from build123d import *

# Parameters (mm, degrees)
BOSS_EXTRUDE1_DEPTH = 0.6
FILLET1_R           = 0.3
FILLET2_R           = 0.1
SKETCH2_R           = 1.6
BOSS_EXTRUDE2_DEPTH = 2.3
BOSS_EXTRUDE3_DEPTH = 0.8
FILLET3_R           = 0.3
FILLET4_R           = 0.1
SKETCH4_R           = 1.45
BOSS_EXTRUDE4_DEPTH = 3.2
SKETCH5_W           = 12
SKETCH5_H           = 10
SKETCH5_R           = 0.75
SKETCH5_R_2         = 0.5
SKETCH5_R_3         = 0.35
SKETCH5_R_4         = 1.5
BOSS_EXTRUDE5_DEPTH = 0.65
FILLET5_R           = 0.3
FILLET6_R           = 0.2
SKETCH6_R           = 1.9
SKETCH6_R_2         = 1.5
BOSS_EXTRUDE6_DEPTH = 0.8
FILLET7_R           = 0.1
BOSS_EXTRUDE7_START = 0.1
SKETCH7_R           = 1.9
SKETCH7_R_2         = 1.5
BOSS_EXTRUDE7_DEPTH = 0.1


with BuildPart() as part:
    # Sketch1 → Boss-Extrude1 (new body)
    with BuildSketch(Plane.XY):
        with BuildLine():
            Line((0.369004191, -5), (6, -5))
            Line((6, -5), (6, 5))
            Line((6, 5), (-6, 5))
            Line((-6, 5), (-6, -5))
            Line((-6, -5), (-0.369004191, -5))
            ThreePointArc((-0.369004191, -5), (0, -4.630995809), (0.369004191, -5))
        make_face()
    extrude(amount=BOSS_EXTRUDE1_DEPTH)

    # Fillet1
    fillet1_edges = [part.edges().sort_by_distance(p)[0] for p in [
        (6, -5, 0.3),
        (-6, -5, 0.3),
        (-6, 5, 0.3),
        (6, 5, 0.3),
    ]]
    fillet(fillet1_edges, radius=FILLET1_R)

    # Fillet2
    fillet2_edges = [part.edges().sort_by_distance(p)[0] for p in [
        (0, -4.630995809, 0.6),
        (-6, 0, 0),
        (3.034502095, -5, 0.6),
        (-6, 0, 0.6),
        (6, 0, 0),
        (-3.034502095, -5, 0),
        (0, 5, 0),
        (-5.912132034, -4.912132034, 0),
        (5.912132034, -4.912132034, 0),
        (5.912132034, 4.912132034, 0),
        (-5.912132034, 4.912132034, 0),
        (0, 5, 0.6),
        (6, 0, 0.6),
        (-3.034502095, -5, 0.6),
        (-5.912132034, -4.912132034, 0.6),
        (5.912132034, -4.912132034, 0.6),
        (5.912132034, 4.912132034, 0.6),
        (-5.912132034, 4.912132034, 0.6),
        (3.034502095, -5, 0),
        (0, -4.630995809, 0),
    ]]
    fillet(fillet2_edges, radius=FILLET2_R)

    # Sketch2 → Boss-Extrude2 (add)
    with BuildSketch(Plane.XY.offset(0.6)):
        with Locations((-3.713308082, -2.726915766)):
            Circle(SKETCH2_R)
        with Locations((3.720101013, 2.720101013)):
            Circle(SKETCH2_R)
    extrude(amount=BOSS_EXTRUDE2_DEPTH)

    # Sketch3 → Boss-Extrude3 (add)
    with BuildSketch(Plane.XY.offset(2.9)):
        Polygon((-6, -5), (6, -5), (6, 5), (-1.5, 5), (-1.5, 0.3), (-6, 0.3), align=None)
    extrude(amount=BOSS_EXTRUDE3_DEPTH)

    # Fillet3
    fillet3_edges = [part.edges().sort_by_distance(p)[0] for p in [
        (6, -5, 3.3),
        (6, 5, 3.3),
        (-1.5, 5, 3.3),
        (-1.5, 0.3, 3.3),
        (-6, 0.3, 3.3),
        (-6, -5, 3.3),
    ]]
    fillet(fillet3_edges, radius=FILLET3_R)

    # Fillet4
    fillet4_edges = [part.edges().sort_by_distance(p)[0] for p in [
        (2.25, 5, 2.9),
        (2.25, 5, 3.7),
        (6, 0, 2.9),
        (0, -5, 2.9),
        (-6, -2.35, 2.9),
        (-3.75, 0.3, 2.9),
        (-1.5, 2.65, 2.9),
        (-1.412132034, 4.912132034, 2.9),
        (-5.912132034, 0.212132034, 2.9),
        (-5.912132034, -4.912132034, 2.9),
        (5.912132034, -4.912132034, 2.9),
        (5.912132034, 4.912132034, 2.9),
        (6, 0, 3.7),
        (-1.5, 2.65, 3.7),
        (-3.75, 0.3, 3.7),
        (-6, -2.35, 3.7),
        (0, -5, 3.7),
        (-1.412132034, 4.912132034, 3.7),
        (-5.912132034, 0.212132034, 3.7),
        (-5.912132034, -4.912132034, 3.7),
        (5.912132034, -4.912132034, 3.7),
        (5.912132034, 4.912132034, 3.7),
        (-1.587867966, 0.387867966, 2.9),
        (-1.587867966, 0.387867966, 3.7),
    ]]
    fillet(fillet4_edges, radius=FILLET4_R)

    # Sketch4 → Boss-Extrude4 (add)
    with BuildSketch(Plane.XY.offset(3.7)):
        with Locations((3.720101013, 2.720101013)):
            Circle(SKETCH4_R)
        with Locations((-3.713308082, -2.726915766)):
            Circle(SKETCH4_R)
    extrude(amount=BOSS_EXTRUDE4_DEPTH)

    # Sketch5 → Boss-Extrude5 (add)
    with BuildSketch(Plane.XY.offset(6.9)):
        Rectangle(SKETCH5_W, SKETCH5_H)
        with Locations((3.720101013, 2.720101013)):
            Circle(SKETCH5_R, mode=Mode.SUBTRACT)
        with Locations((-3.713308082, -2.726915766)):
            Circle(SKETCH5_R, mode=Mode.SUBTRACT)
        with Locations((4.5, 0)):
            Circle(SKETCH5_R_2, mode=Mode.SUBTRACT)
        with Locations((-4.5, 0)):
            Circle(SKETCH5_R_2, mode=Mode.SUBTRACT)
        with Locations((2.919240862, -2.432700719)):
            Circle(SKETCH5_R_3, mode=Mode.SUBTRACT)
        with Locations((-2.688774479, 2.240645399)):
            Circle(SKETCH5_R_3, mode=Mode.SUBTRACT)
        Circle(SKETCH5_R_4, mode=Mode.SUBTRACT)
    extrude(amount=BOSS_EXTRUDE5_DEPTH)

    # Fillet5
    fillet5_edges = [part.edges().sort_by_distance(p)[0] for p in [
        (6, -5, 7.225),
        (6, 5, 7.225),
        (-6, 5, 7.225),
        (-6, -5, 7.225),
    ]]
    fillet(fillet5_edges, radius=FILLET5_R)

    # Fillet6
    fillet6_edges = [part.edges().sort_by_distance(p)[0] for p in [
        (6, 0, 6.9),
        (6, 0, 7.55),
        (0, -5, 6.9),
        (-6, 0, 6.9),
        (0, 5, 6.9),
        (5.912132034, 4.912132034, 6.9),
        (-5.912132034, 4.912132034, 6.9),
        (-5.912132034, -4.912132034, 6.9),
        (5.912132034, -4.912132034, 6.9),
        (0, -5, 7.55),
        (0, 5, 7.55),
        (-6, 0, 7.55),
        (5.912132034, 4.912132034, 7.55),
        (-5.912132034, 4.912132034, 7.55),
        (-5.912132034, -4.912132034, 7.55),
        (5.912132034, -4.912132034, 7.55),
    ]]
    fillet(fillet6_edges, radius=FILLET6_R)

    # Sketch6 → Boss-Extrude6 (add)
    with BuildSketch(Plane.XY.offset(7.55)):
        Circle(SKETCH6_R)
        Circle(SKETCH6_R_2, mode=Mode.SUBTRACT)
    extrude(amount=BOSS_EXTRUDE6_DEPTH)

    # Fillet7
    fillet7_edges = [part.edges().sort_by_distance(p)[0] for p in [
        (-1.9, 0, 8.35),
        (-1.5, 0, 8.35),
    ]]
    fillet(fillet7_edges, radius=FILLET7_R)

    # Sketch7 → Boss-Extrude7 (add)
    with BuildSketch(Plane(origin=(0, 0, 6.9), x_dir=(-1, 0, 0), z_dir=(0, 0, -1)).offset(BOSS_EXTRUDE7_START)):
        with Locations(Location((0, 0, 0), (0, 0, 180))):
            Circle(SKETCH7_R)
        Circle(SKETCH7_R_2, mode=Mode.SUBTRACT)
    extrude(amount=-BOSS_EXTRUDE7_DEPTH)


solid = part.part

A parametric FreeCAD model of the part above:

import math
import FreeCAD as App
import Part
import Sketcher
from FreeCAD import Vector


def edges_at(feature, points):
    """Names of the edges that pass closest to the given points."""
    edges = feature.Shape.Edges
    near = lambda p: min(range(len(edges)), key=lambda i: edges[i].distToShape(Part.Vertex(*p))[0])
    return sorted({f"Edge{near(p) + 1}" for p in points})

doc = App.newDocument("Part")
body = doc.addObject("PartDesign::Body", "Body")

sketch1 = body.newObject("Sketcher::SketchObject", "Sketch")
sketch1.AttachmentSupport = (doc.getObject("XY_Plane"), [""])
sketch1.MapMode = "FlatFace"
sketch1.addGeometry(Part.LineSegment(Vector(0.37, -5, 0), Vector(6, -5, 0)), False)
sketch1.addGeometry(Part.LineSegment(Vector(6, -5, 0), Vector(6, 5, 0)), False)
sketch1.addGeometry(Part.LineSegment(Vector(6, 5, 0), Vector(-6, 5, 0)), False)
sketch1.addGeometry(Part.LineSegment(Vector(-6, 5, 0), Vector(-6, -5, 0)), False)
sketch1.addGeometry(Part.LineSegment(Vector(-6, -5, 0), Vector(-0.37, -5, 0)), False)
sketch1.addGeometry(Part.ArcOfCircle(Part.Circle(Vector(0, -5, 0), Vector(0, 0, 1), 0.37), math.radians(0), math.radians(180)), False)
sketch1.addConstraint(Sketcher.Constraint("Coincident", 0, 2, 1, 1))
sketch1.addConstraint(Sketcher.Constraint("Coincident", 1, 2, 2, 1))
sketch1.addConstraint(Sketcher.Constraint("Coincident", 2, 2, 3, 1))
sketch1.addConstraint(Sketcher.Constraint("Coincident", 3, 2, 4, 1))
sketch1.addConstraint(Sketcher.Constraint("Coincident", 4, 2, 5, 2))
sketch1.addConstraint(Sketcher.Constraint("Coincident", 5, 1, 0, 1))
sketch1.addConstraint(Sketcher.Constraint("Horizontal", 0))
sketch1.addConstraint(Sketcher.Constraint("Vertical", 1))
sketch1.addConstraint(Sketcher.Constraint("Horizontal", 2))
sketch1.addConstraint(Sketcher.Constraint("Vertical", 3))
sketch1.addConstraint(Sketcher.Constraint("Horizontal", 4))
sketch1.addConstraint(Sketcher.Constraint("Symmetric", 0, 2, 2, 2, -1, 1))
sketch1.addConstraint(Sketcher.Constraint("Symmetric", 4, 2, 5, 1, -2))
sketch1.addConstraint(Sketcher.Constraint("Horizontal", 5, 3, 0, 2))
sketch1.addConstraint(Sketcher.Constraint("DistanceX", 2, 2, 2, 1, 12.0))
sketch1.addConstraint(Sketcher.Constraint("DistanceY", 1, 1, 1, 2, 10.0))
sketch1.addConstraint(Sketcher.Constraint("Radius", 5, 0.369004))
pad1 = body.newObject("PartDesign::Pad", "Pad")
pad1.Profile = sketch1
pad1.Length = 0.6
doc.recompute()

fillet = body.newObject("PartDesign::Fillet", "Fillet")
fillet.Base = (pad1, edges_at(pad1, [
    (6, -5, 0.3),
    (-6, -5, 0.3),
    (-6, 5, 0.3),
    (6, 5, 0.3),
]))
fillet.Radius = 0.3
doc.recompute()

fillet2 = body.newObject("PartDesign::Fillet", "Fillet001")
fillet2.Base = (fillet, edges_at(fillet, [
    (0, -4.631, 0.6),
    (-6, 0, 0),
    (3.035, -5, 0.6),
    (-6, 0, 0.6),
    (6, 0, 0),
    (-3.035, -5, 0),
    (0, 5, 0),
    (-5.912, -4.912, 0),
    (5.912, -4.912, 0),
    (5.912, 4.912, 0),
    (-5.912, 4.912, 0),
    (0, 5, 0.6),
    (6, 0, 0.6),
    (-3.035, -5, 0.6),
    (-5.912, -4.912, 0.6),
    (5.912, -4.912, 0.6),
    (5.912, 4.912, 0.6),
    (-5.912, 4.912, 0.6),
    (3.035, -5, 0),
    (0, -4.631, 0),
]))
fillet2.Radius = 0.1

sketch2 = body.newObject("Sketcher::SketchObject", "Sketch001")
sketch2.AttachmentSupport = (doc.getObject("XY_Plane"), [""])
sketch2.MapMode = "FlatFace"
sketch2.AttachmentOffset = App.Placement(Vector(0, 0, 0.6), App.Rotation())
sketch2.addGeometry(Part.Circle(Vector(-3.7, -2.7, 0), Vector(0, 0, 1), 1.6), False)
sketch2.addGeometry(Part.Circle(Vector(3.7, 2.7, 0), Vector(0, 0, 1), 1.6), False)
sketch2.addConstraint(Sketcher.Constraint("Equal", 0, 1))
sketch2.addConstraint(Sketcher.Constraint("Diameter", 0, 3.2))
sketch2.addConstraint(Sketcher.Constraint("DistanceX", -1, 1, 1, 3, 3.720101))
sketch2.addConstraint(Sketcher.Constraint("DistanceY", -1, 1, 1, 3, 2.720101))
sketch2.addConstraint(Sketcher.Constraint("DistanceX", 0, 3, -1, 1, 3.713308))
sketch2.addConstraint(Sketcher.Constraint("DistanceY", 0, 3, -1, 1, 2.726916))
pad2 = body.newObject("PartDesign::Pad", "Pad001")
pad2.Profile = sketch2
pad2.Length = 2.3

sketch3 = body.newObject("Sketcher::SketchObject", "Sketch002")
sketch3.AttachmentSupport = (doc.getObject("XY_Plane"), [""])
sketch3.MapMode = "FlatFace"
sketch3.AttachmentOffset = App.Placement(Vector(0, 0, 2.9), App.Rotation())
sketch3.addGeometry(Part.LineSegment(Vector(-6, -5, 0), Vector(6, -5, 0)), False)
sketch3.addGeometry(Part.LineSegment(Vector(6, -5, 0), Vector(6, 5, 0)), False)
sketch3.addGeometry(Part.LineSegment(Vector(6, 5, 0), Vector(-1.5, 5, 0)), False)
sketch3.addGeometry(Part.LineSegment(Vector(-1.5, 5, 0), Vector(-1.5, 0.3, 0)), False)
sketch3.addGeometry(Part.LineSegment(Vector(-1.5, 0.3, 0), Vector(-6, 0.3, 0)), False)
sketch3.addGeometry(Part.LineSegment(Vector(-6, 0.3, 0), Vector(-6, -5, 0)), False)
sketch3.addConstraint(Sketcher.Constraint("Coincident", 0, 2, 1, 1))
sketch3.addConstraint(Sketcher.Constraint("Coincident", 1, 2, 2, 1))
sketch3.addConstraint(Sketcher.Constraint("Coincident", 2, 2, 3, 1))
sketch3.addConstraint(Sketcher.Constraint("Coincident", 3, 2, 4, 1))
sketch3.addConstraint(Sketcher.Constraint("Coincident", 4, 2, 5, 1))
sketch3.addConstraint(Sketcher.Constraint("Coincident", 5, 2, 0, 1))
sketch3.addConstraint(Sketcher.Constraint("Horizontal", 0))
sketch3.addConstraint(Sketcher.Constraint("Vertical", 1))
sketch3.addConstraint(Sketcher.Constraint("Horizontal", 2))
sketch3.addConstraint(Sketcher.Constraint("Vertical", 3))
sketch3.addConstraint(Sketcher.Constraint("Horizontal", 4))
sketch3.addConstraint(Sketcher.Constraint("Vertical", 5))
sketch3.addConstraint(Sketcher.Constraint("Symmetric", 1, 2, 5, 2, -1, 1))
sketch3.addConstraint(Sketcher.Constraint("DistanceX", 0, 1, 0, 2, 12.0))
sketch3.addConstraint(Sketcher.Constraint("DistanceY", 1, 1, 1, 2, 10.0))
sketch3.addConstraint(Sketcher.Constraint("DistanceX", 2, 2, 2, 1, 7.5))
sketch3.addConstraint(Sketcher.Constraint("DistanceY", 3, 2, 3, 1, 4.7))
pad3 = body.newObject("PartDesign::Pad", "Pad002")
pad3.Profile = sketch3
pad3.Length = 0.8
doc.recompute()

fillet3 = body.newObject("PartDesign::Fillet", "Fillet002")
fillet3.Base = (pad3, edges_at(pad3, [
    (6, -5, 3.3),
    (6, 5, 3.3),
    (-1.5, 5, 3.3),
    (-1.5, 0.3, 3.3),
    (-6, 0.3, 3.3),
    (-6, -5, 3.3),
]))
fillet3.Radius = 0.3
doc.recompute()

fillet4 = body.newObject("PartDesign::Fillet", "Fillet003")
fillet4.Base = (fillet3, edges_at(fillet3, [
    (2.25, 5, 2.9),
    (2.25, 5, 3.7),
    (6, 0, 2.9),
    (0, -5, 2.9),
    (-6, -2.35, 2.9),
    (-3.75, 0.3, 2.9),
    (-1.5, 2.65, 2.9),
    (-1.412, 4.912, 2.9),
    (-5.912, 0.212, 2.9),
    (-5.912, -4.912, 2.9),
    (5.912, -4.912, 2.9),
    (5.912, 4.912, 2.9),
    (6, 0, 3.7),
    (-1.5, 2.65, 3.7),
    (-3.75, 0.3, 3.7),
    (-6, -2.35, 3.7),
    (0, -5, 3.7),
    (-1.412, 4.912, 3.7),
    (-5.912, 0.212, 3.7),
    (-5.912, -4.912, 3.7),
    (5.912, -4.912, 3.7),
    (5.912, 4.912, 3.7),
    (-1.588, 0.388, 2.9),
    (-1.588, 0.388, 3.7),
]))
fillet4.Radius = 0.1

sketch4 = body.newObject("Sketcher::SketchObject", "Sketch003")
sketch4.AttachmentSupport = (doc.getObject("XY_Plane"), [""])
sketch4.MapMode = "FlatFace"
sketch4.AttachmentOffset = App.Placement(Vector(0, 0, 3.7), App.Rotation())
sketch4.addGeometry(Part.Circle(Vector(3.7, 2.7, 0), Vector(0, 0, 1), 1.4), False)
sketch4.addGeometry(Part.Circle(Vector(-3.7, -2.7, 0), Vector(0, 0, 1), 1.4), False)
sketch4.addConstraint(Sketcher.Constraint("Equal", 0, 1))
sketch4.addConstraint(Sketcher.Constraint("Diameter", 0, 2.9))
sketch4.addConstraint(Sketcher.Constraint("DistanceX", -1, 1, 0, 3, 3.720101))
sketch4.addConstraint(Sketcher.Constraint("DistanceY", -1, 1, 0, 3, 2.720101))
sketch4.addConstraint(Sketcher.Constraint("DistanceX", 1, 3, -1, 1, 3.713308))
sketch4.addConstraint(Sketcher.Constraint("DistanceY", 1, 3, -1, 1, 2.726916))
pad4 = body.newObject("PartDesign::Pad", "Pad003")
pad4.Profile = sketch4
pad4.Length = 3.2

sketch5 = body.newObject("Sketcher::SketchObject", "Sketch004")
sketch5.AttachmentSupport = (doc.getObject("XY_Plane"), [""])
sketch5.MapMode = "FlatFace"
sketch5.AttachmentOffset = App.Placement(Vector(0, 0, 6.9), App.Rotation())
sketch5.addGeometry(Part.LineSegment(Vector(-6, 5, 0), Vector(-6, -5, 0)), False)
sketch5.addGeometry(Part.LineSegment(Vector(-6, -5, 0), Vector(6, -5, 0)), False)
sketch5.addGeometry(Part.LineSegment(Vector(6, -5, 0), Vector(6, 5, 0)), False)
sketch5.addGeometry(Part.LineSegment(Vector(6, 5, 0), Vector(-6, 5, 0)), False)
sketch5.addGeometry(Part.Circle(Vector(-3.71, -2.73, 0), Vector(0, 0, 1), 0.75), False)
sketch5.addGeometry(Part.Circle(Vector(2.92, -2.43, 0), Vector(0, 0, 1), 0.35), False)
sketch5.addGeometry(Part.Circle(Vector(-4.5, 0, 0), Vector(0, 0, 1), 0.5), False)
sketch5.addGeometry(Part.Circle(Vector(-2.69, 2.24, 0), Vector(0, 0, 1), 0.35), False)
sketch5.addGeometry(Part.Circle(Vector(0, 0, 0), Vector(0, 0, 1), 1.5), False)
sketch5.addGeometry(Part.Circle(Vector(4.5, 0, 0), Vector(0, 0, 1), 0.5), False)
sketch5.addGeometry(Part.Circle(Vector(3.72, 2.72, 0), Vector(0, 0, 1), 0.75), False)
sketch5.addConstraint(Sketcher.Constraint("Coincident", 0, 2, 1, 1))
sketch5.addConstraint(Sketcher.Constraint("Coincident", 1, 2, 2, 1))
sketch5.addConstraint(Sketcher.Constraint("Coincident", 2, 2, 3, 1))
sketch5.addConstraint(Sketcher.Constraint("Coincident", 3, 2, 0, 1))
sketch5.addConstraint(Sketcher.Constraint("Vertical", 0))
sketch5.addConstraint(Sketcher.Constraint("Horizontal", 1))
sketch5.addConstraint(Sketcher.Constraint("Vertical", 2))
sketch5.addConstraint(Sketcher.Constraint("Horizontal", 3))
sketch5.addConstraint(Sketcher.Constraint("Coincident", 8, 3, -1, 1))
sketch5.addConstraint(Sketcher.Constraint("Equal", 5, 7))
sketch5.addConstraint(Sketcher.Constraint("Equal", 6, 9))
sketch5.addConstraint(Sketcher.Constraint("Equal", 4, 10))
sketch5.addConstraint(Sketcher.Constraint("Symmetric", 6, 3, 9, 3, -1, 1))
sketch5.addConstraint(Sketcher.Constraint("Symmetric", 0, 2, 2, 2, -1, 1))
sketch5.addConstraint(Sketcher.Constraint("PointOnObject", 6, 3, -1))
sketch5.addConstraint(Sketcher.Constraint("Diameter", 6, 1.0))
sketch5.addConstraint(Sketcher.Constraint("Diameter", 8, 3.0))
sketch5.addConstraint(Sketcher.Constraint("Diameter", 4, 1.5))
sketch5.addConstraint(Sketcher.Constraint("Diameter", 5, 0.7))
sketch5.addConstraint(Sketcher.Constraint("DistanceX", 1, 1, 1, 2, 12.0))
sketch5.addConstraint(Sketcher.Constraint("DistanceY", 0, 2, 0, 1, 10.0))
sketch5.addConstraint(Sketcher.Constraint("DistanceX", 6, 3, 9, 3, 9.0))
sketch5.addConstraint(Sketcher.Constraint("DistanceY", 5, 3, -1, 1, 2.432701))
sketch5.addConstraint(Sketcher.Constraint("DistanceX", -1, 1, 10, 3, 3.720101))
sketch5.addConstraint(Sketcher.Constraint("DistanceY", -1, 1, 10, 3, 2.720101))
sketch5.addConstraint(Sketcher.Constraint("DistanceX", 4, 3, -1, 1, 3.713308))
sketch5.addConstraint(Sketcher.Constraint("DistanceX", -1, 1, 5, 3, 2.919241))
sketch5.addConstraint(Sketcher.Constraint("DistanceY", 4, 3, 7, 3, 4.967561))
sketch5.addConstraint(Sketcher.Constraint("DistanceY", 4, 3, -1, 1, 2.726916))
sketch5.addConstraint(Sketcher.Constraint("DistanceX", 7, 3, -1, 1, 2.688774))
pad5 = body.newObject("PartDesign::Pad", "Pad004")
pad5.Profile = sketch5
pad5.Length = 0.65
doc.recompute()

fillet5 = body.newObject("PartDesign::Fillet", "Fillet004")
fillet5.Base = (pad5, edges_at(pad5, [
    (6, -5, 7.225),
    (6, 5, 7.225),
    (-6, 5, 7.225),
    (-6, -5, 7.225),
]))
fillet5.Radius = 0.3
doc.recompute()

fillet6 = body.newObject("PartDesign::Fillet", "Fillet005")
fillet6.Base = (fillet5, edges_at(fillet5, [
    (6, 0, 6.9),
    (6, 0, 7.55),
    (0, -5, 6.9),
    (-6, 0, 6.9),
    (0, 5, 6.9),
    (5.912, 4.912, 6.9),
    (-5.912, 4.912, 6.9),
    (-5.912, -4.912, 6.9),
    (5.912, -4.912, 6.9),
    (0, -5, 7.55),
    (0, 5, 7.55),
    (-6, 0, 7.55),
    (5.912, 4.912, 7.55),
    (-5.912, 4.912, 7.55),
    (-5.912, -4.912, 7.55),
    (5.912, -4.912, 7.55),
]))
fillet6.Radius = 0.2

sketch6 = body.newObject("Sketcher::SketchObject", "Sketch005")
sketch6.AttachmentSupport = (doc.getObject("XY_Plane"), [""])
sketch6.MapMode = "FlatFace"
sketch6.AttachmentOffset = App.Placement(Vector(0, 0, 7.55), App.Rotation())
sketch6.addGeometry(Part.Circle(Vector(0, 0, 0), Vector(0, 0, 1), 1.9), False)
sketch6.addGeometry(Part.Circle(Vector(0, 0, 0), Vector(0, 0, 1), 1.5), False)
sketch6.addConstraint(Sketcher.Constraint("Coincident", 0, 3, -1, 1))
sketch6.addConstraint(Sketcher.Constraint("Coincident", 1, 3, -1, 1))
sketch6.addConstraint(Sketcher.Constraint("Diameter", 1, 3.0))
sketch6.addConstraint(Sketcher.Constraint("Diameter", 0, 3.8))
pad6 = body.newObject("PartDesign::Pad", "Pad005")
pad6.Profile = sketch6
pad6.Length = 0.8
doc.recompute()

fillet7 = body.newObject("PartDesign::Fillet", "Fillet006")
fillet7.Base = (pad6, edges_at(pad6, [(-1.9, 0, 8.35), (-1.5, 0, 8.35)]))
fillet7.Radius = 0.1

sketch7 = body.newObject("Sketcher::SketchObject", "Sketch006")
sketch7.AttachmentSupport = (doc.getObject("XY_Plane"), [""])
sketch7.MapMode = "FlatFace"
sketch7.AttachmentOffset = App.Placement(Vector(0, 0, 6.8), App.Rotation())
sketch7.addGeometry(Part.Circle(Vector(0, 0, 0), Vector(0, 0, 1), 1.9), False)
sketch7.addGeometry(Part.Circle(Vector(0, 0, 0), Vector(0, 0, 1), 1.5), False)
sketch7.addConstraint(Sketcher.Constraint("Coincident", 0, 3, -1, 1))
sketch7.addConstraint(Sketcher.Constraint("Coincident", 1, 3, -1, 1))
sketch7.addConstraint(Sketcher.Constraint("Diameter", 1, 3.0))
sketch7.addConstraint(Sketcher.Constraint("Diameter", 0, 3.8))
pad7 = body.newObject("PartDesign::Pad", "Pad006")
pad7.Profile = sketch7
pad7.Length = 0.1

doc.recompute()
